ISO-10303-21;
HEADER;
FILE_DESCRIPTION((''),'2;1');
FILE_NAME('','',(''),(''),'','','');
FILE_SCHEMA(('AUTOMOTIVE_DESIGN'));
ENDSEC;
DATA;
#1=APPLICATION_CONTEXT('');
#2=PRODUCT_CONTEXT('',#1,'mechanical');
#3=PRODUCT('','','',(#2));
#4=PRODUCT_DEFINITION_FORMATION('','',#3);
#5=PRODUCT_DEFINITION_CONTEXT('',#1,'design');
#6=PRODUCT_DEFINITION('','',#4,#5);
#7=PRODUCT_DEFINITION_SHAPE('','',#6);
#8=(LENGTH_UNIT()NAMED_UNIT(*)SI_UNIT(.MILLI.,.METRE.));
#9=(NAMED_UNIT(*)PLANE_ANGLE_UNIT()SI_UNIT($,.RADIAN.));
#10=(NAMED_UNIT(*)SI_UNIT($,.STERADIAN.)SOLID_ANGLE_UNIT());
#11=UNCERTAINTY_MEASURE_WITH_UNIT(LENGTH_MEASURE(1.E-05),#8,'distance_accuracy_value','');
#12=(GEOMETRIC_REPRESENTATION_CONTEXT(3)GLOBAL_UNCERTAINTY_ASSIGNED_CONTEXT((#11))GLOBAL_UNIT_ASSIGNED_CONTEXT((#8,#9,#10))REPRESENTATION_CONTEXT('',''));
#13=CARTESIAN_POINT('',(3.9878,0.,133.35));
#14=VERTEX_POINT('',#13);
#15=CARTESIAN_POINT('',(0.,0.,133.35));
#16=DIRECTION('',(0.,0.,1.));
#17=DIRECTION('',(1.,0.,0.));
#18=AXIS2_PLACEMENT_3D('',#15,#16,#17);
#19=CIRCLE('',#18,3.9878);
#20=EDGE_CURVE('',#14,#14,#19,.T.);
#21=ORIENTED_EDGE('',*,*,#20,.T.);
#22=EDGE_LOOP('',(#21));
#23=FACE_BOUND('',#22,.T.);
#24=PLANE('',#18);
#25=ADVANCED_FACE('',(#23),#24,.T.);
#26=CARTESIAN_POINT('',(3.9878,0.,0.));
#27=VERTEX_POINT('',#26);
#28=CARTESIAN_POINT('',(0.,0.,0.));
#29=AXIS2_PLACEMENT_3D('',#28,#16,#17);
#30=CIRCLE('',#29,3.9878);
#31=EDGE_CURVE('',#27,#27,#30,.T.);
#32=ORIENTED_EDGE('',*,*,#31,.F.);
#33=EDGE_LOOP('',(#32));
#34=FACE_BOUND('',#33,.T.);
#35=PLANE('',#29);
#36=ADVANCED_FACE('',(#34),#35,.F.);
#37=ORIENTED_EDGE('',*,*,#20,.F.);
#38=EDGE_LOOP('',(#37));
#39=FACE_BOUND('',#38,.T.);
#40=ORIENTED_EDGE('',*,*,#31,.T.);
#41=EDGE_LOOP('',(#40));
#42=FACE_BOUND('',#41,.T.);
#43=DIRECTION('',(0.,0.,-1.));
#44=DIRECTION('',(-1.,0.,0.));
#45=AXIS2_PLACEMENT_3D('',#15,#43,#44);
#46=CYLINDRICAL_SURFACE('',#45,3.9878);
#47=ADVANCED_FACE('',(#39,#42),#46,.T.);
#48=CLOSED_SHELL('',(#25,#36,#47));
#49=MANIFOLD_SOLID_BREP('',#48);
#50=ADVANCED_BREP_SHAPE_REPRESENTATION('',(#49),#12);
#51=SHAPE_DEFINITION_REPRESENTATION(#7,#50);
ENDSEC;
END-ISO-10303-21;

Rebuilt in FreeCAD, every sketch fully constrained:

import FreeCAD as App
import Part
import Sketcher
Q = App.Units.Quantity

doc = App.newDocument("Part")
body = doc.addObject("PartDesign::Body", "Body")

sketch1 = body.newObject("Sketcher::SketchObject", "Sketch")
sketch1.AttachmentSupport = (doc.getObject("XY_Plane"), [""])
sketch1.MapMode = "FlatFace"
sketch1.addGeometry(Part.Circle(App.Vector(0, 0, 0), App.Vector(0, 0, 1), 4), False)
sketch1.addConstraint(Sketcher.Constraint("Coincident", 0, 3, -1, 1))
sketch1.addConstraint(Sketcher.Constraint("Diameter", 0, Q("0.314 in")))
pad1 = body.newObject("PartDesign::Pad", "Pad")
pad1.Profile = sketch1
pad1.Length = Q("5.25 in")

doc.recompute()
